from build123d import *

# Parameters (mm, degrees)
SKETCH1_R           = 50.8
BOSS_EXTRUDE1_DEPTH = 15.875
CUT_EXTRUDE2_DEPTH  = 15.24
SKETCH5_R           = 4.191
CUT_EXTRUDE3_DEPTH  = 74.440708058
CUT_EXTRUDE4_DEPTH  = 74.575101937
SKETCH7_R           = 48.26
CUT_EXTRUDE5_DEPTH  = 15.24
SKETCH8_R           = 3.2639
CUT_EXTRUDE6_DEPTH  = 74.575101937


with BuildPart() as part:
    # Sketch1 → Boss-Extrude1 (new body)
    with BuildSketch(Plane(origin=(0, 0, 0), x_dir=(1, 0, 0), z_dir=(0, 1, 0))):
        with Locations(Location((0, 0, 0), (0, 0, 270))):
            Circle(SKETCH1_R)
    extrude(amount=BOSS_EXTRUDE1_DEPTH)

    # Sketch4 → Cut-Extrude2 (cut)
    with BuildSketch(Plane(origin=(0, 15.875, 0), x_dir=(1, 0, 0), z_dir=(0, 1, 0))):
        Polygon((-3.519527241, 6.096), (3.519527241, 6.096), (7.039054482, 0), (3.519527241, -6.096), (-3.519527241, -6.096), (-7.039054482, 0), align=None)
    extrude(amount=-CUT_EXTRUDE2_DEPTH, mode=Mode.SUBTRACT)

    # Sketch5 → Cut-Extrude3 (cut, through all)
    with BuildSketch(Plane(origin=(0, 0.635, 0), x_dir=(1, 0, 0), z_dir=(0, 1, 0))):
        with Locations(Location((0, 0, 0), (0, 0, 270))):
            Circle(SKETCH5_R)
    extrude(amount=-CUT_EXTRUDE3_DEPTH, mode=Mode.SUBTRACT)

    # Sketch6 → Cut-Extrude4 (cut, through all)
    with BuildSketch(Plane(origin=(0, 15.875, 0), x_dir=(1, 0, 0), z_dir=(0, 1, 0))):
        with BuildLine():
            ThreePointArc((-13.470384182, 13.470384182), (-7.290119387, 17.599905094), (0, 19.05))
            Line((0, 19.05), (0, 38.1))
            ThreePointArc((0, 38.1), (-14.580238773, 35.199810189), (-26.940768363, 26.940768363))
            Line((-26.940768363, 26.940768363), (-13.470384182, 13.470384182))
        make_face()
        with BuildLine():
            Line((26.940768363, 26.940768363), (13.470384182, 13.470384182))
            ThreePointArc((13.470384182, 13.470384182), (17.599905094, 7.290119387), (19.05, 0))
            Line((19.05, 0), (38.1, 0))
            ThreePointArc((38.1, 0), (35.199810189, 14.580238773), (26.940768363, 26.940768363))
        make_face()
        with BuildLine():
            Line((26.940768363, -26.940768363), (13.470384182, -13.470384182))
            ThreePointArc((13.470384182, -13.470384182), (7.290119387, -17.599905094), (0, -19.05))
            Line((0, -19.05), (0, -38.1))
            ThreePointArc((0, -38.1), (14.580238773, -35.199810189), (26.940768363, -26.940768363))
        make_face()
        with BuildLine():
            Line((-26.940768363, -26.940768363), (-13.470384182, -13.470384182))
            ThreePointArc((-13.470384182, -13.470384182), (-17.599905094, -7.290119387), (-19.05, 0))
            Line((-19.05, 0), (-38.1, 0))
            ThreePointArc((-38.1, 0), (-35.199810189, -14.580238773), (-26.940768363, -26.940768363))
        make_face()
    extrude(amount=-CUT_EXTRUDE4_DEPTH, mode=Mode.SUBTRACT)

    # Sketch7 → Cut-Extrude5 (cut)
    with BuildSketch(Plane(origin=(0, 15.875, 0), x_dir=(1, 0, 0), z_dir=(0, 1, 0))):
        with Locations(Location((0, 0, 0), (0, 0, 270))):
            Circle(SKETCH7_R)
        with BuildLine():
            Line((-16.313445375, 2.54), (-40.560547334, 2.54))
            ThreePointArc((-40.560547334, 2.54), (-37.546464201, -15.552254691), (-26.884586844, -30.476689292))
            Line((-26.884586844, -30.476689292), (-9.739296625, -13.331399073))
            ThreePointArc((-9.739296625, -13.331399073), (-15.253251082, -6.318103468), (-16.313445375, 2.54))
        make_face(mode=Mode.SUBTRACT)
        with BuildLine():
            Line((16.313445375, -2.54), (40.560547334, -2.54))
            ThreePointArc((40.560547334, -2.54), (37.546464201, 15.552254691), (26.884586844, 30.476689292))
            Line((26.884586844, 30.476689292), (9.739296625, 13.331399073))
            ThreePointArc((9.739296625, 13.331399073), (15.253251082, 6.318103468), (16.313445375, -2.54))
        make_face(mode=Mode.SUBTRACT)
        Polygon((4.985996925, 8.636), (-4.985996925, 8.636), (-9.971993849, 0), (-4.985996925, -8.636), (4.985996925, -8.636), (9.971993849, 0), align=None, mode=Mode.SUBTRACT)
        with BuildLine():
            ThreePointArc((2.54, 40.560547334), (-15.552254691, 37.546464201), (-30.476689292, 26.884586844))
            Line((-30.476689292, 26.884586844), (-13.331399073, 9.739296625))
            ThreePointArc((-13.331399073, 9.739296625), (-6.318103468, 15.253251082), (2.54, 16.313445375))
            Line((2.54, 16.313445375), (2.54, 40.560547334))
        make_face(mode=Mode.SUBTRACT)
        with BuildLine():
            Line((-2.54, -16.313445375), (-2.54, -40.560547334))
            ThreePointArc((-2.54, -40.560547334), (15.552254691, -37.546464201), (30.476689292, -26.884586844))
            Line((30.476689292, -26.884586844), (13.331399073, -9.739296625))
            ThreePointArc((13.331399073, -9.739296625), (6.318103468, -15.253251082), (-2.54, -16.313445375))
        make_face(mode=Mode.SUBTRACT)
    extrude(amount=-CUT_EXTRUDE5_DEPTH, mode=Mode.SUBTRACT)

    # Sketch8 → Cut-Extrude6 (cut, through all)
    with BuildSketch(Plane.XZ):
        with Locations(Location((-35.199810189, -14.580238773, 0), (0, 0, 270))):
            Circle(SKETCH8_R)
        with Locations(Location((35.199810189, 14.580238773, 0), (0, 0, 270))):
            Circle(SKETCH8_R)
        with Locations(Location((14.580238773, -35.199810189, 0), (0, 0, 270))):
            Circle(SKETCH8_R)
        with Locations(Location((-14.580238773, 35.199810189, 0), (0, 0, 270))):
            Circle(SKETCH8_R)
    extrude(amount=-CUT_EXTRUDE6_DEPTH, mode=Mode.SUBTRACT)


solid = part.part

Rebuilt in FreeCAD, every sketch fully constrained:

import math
import FreeCAD as App
import Part
import Sketcher
Q = App.Units.Quantity

doc = App.newDocument("Part")
body = doc.addObject("PartDesign::Body", "Body")

# Sketch on XZ plane
sketch1 = body.newObject("Sketcher::SketchObject", "Sketch")
sketch1.AttachmentSupport = (doc.getObject("XZ_Plane"), [""])
sketch1.MapMode = "FlatFace"
sketch1.addGeometry(Part.Circle(App.Vector(0, 0, 0), App.Vector(0, 0, 1), 51), False)
sketch1.addConstraint([
    Sketcher.Constraint("Coincident", 0, 3, -1, 1),
    Sketcher.Constraint("Diameter", 0, Q("4 in")),
])
pad1 = body.newObject("PartDesign::Pad", "Pad")
pad1.Profile = sketch1
pad1.Length = Q("0.625 in")
pad1.Reversed = True

# Sketch on XZ plane
sketch2 = body.newObject("Sketcher::SketchObject", "Sketch001")
sketch2.AttachmentSupport = (doc.getObject("XZ_Plane"), [""])
sketch2.MapMode = "FlatFace"
sketch2.AttachmentOffset = App.Placement(App.Vector(0, 0, -0.625 * 25.4), App.Rotation())
sketch2.addGeometry([
    Part.LineSegment(App.Vector(4, -6, 0), App.Vector(-4, -6, 0)),  # 0
    Part.LineSegment(App.Vector(-4, -6, 0), App.Vector(-7, 0, 0)),  # 1
    Part.LineSegment(App.Vector(-7, 0, 0), App.Vector(-4, 6, 0)),  # 2
    Part.LineSegment(App.Vector(-4, 6, 0), App.Vector(4, 6, 0)),  # 3
    Part.LineSegment(App.Vector(4, 6, 0), App.Vector(7, 0, 0)),  # 4
    Part.LineSegment(App.Vector(7, 0, 0), App.Vector(4, -6, 0)),  # 5
], False)
sketch2.addConstraint([
    Sketcher.Constraint("Coincident", 0, 2, 1, 1),
    Sketcher.Constraint("Coincident", 1, 2, 2, 1),
    Sketcher.Constraint("Coincident", 2, 2, 3, 1),
    Sketcher.Constraint("Coincident", 3, 2, 4, 1),
    Sketcher.Constraint("Coincident", 4, 2, 5, 1),
    Sketcher.Constraint("Coincident", 5, 2, 0, 1),
    Sketcher.Constraint("Horizontal", 0),
    Sketcher.Constraint("Horizontal", 3),
    Sketcher.Constraint("Symmetric", 0, 2, 3, 2, -1, 1),
    Sketcher.Constraint("Symmetric", 1, 2, 4, 2, -1, 1),
    Sketcher.Constraint("PointOnObject", 1, 2, -1),
    Sketcher.Constraint("Parallel", 2, 5),
    Sketcher.Constraint("Vertical", 0, 2, 2, 2),
    Sketcher.Constraint("Angle", 1, Q("120 deg")),
    Sketcher.Constraint("DistanceY", 0, 2, -1, 1, Q("0.24 in")),
    Sketcher.Constraint("DistanceX", 0, 2, 0, 1, Q("7.039054 mm")),
])
pocket1 = body.newObject("PartDesign::Pocket", "Pocket")
pocket1.Profile = sketch2
pocket1.Length = Q("0.6 in")
pocket1.Reversed = True

# Sketch on XZ plane
sketch3 = body.newObject("Sketcher::SketchObject", "Sketch002")
sketch3.AttachmentSupport = (doc.getObject("XZ_Plane"), [""])
sketch3.MapMode = "FlatFace"
sketch3.AttachmentOffset = App.Placement(App.Vector(0, 0, -0.025 * 25.4), App.Rotation())
sketch3.addGeometry(Part.Circle(App.Vector(0, 0, 0), App.Vector(0, 0, 1), 4.2), False)
sketch3.addConstraint([
    Sketcher.Constraint("Coincident", 0, 3, -1, 1),
    Sketcher.Constraint("Diameter", 0, Q("0.33 in")),
])
pocket2 = body.newObject("PartDesign::Pocket", "Pocket001")
pocket2.Profile = sketch3
pocket2.Type = "ThroughAll"
pocket2.Reversed = True

# Sketch on XZ plane
sketch4 = body.newObject("Sketcher::SketchObject", "Sketch003")
sketch4.AttachmentSupport = (doc.getObject("XZ_Plane"), [""])
sketch4.MapMode = "FlatFace"
sketch4.AttachmentOffset = App.Placement(App.Vector(0, 0, -0.625 * 25.4), App.Rotation())
sketch4.addGeometry([
    Part.ArcOfCircle(Part.Circle(App.Vector(0, 0, 0), App.Vector(0, 0, 1), 19), math.radians(-135), math.radians(-90)),  # 0
    Part.LineSegment(App.Vector(0, -19, 0), App.Vector(0, -38, 0)),  # 1
    Part.ArcOfCircle(Part.Circle(App.Vector(0, 0, 0), App.Vector(0, 0, 1), 38), math.radians(-135), math.radians(-90)),  # 2
    Part.LineSegment(App.Vector(-27, -27, 0), App.Vector(-13, -13, 0)),  # 3
    Part.LineSegment(App.Vector(27, -27, 0), App.Vector(13, -13, 0)),  # 4
    Part.ArcOfCircle(Part.Circle(App.Vector(0, 0, 0), App.Vector(0, 0, 1), 19), math.radians(-45), math.radians(0)),  # 5
    Part.LineSegment(App.Vector(19, 0, 0), App.Vector(38, 0, 0)),  # 6
    Part.ArcOfCircle(Part.Circle(App.Vector(0, 0, 0), App.Vector(0, 0, 1), 38), math.radians(-45), math.radians(0)),  # 7
    Part.LineSegment(App.Vector(27, 27, 0), App.Vector(13, 13, 0)),  # 8
    Part.ArcOfCircle(Part.Circle(App.Vector(0, 0, 0), App.Vector(0, 0, 1), 19), math.radians(45), math.radians(90)),  # 9
    Part.LineSegment(App.Vector(0, 19, 0), App.Vector(0, 38, 0)),  # 10
    Part.ArcOfCircle(Part.Circle(App.Vector(0, 0, 0), App.Vector(0, 0, 1), 38), math.radians(45), math.radians(90)),  # 11
    Part.LineSegment(App.Vector(-27, 27, 0), App.Vector(-13, 13, 0)),  # 12
    Part.ArcOfCircle(Part.Circle(App.Vector(0, 0, 0), App.Vector(0, 0, 1), 19), math.radians(135), math.radians(180)),  # 13
    Part.LineSegment(App.Vector(-19, 0, 0), App.Vector(-38, 0, 0)),  # 14
    Part.ArcOfCircle(Part.Circle(App.Vector(0, 0, 0), App.Vector(0, 0, 1), 38), math.radians(135), math.radians(180)),  # 15
], False)
sketch4.addConstraint([
    Sketcher.Constraint("Coincident", 0, 2, 1, 1),
    Sketcher.Constraint("Coincident", 1, 2, 2, 2),
    Sketcher.Constraint("Coincident", 2, 1, 3, 1),
    Sketcher.Constraint("Coincident", 3, 2, 0, 1),
    Sketcher.Constraint("Coincident", 4, 2, 5, 1),
    Sketcher.Constraint("Coincident", 5, 2, 6, 1),
    Sketcher.Constraint("Coincident", 6, 2, 7, 2),
    Sketcher.Constraint("Coincident", 7, 1, 4, 1),
    Sketcher.Constraint("Coincident", 8, 2, 9, 1),
    Sketcher.Constraint("Coincident", 9, 2, 10, 1),
    Sketcher.Constraint("Coincident", 10, 2, 11, 2),
    Sketcher.Constraint("Coincident", 11, 1, 8, 1),
    Sketcher.Constraint("Coincident", 12, 2, 13, 1),
    Sketcher.Constraint("Coincident", 13, 2, 14, 1),
    Sketcher.Constraint("Coincident", 14, 2, 15, 2),
    Sketcher.Constraint("Coincident", 15, 1, 12, 1),
    Sketcher.Constraint("Vertical", 1),
    Sketcher.Constraint("Horizontal", 6),
    Sketcher.Constraint("Vertical", 10),
    Sketcher.Constraint("Horizontal", 14),
    Sketcher.Constraint("Coincident", 0, 3, -1, 1),
    Sketcher.Constraint("Coincident", 2, 3, -1, 1),
    Sketcher.Constraint("Coincident", 5, 3, -1, 1),
    Sketcher.Constraint("Coincident", 7, 3, -1, 1),
    Sketcher.Constraint("Coincident", 9, 3, -1, 1),
    Sketcher.Constraint("Coincident", 11, 3, -1, 1),
    Sketcher.Constraint("Coincident", 13, 3, -1, 1),
    Sketcher.Constraint("Coincident", 15, 3, -1, 1),
    Sketcher.Constraint("Equal", 0, 5),
    Sketcher.Constraint("Equal", 2, 7),
    Sketcher.Constraint("Equal", 5, 9),
    Sketcher.Constraint("Equal", 7, 11),
    Sketcher.Constraint("Equal", 9, 13),
    Sketcher.Constraint("Equal", 11, 15),
    Sketcher.Constraint("PointOnObject", 0, 2, -2),
    Sketcher.Constraint("PointOnObject", 5, 2, -1),
    Sketcher.Constraint("PointOnObject", 9, 2, -2),
    Sketcher.Constraint("PointOnObject", 13, 2, -1),
    Sketcher.Constraint("Perpendicular", 3, 4),
    Sketcher.Constraint("Perpendicular", 4, 8),
    Sketcher.Constraint("Perpendicular", 8, 12),
    Sketcher.Constraint("Horizontal", 3, 2, 4, 2),
    Sketcher.Constraint("Horizontal", 2, 1, 7, 1),
    Sketcher.Constraint("Horizontal", 8, 2, 12, 2),
    Sketcher.Constraint("Vertical", 4, 2, 8, 2),
    Sketcher.Constraint("Radius", 2, Q("1.5 in")),
    Sketcher.Constraint("Radius", 0, Q("0.75 in")),
    Sketcher.Constraint("DistanceX", 2, 1, -1, 1, Q("26.940768 mm")),
])
pocket3 = body.newObject("PartDesign::Pocket", "Pocket002")
pocket3.Profile = sketch4
pocket3.Type = "ThroughAll"
pocket3.Reversed = True

# Sketch on XZ plane
sketch5 = body.newObject("Sketcher::SketchObject", "Sketch004")
sketch5.AttachmentSupport = (doc.getObject("XZ_Plane"), [""])
sketch5.MapMode = "FlatFace"
sketch5.AttachmentOffset = App.Placement(App.Vector(0, 0, -0.625 * 25.4), App.Rotation())
sketch5.addGeometry([
    Part.Circle(App.Vector(0, 0, 0), App.Vector(0, 0, 1), 48),  # 0
    Part.ArcOfCircle(Part.Circle(App.Vector(0, 0, 0), App.Vector(0, 0, 1), 41), math.radians(-139), math.radians(-86)),  # 1
    Part.LineSegment(App.Vector(3, -41, 0), App.Vector(3, -16, 0)),  # 2
    Part.ArcOfCircle(Part.Circle(App.Vector(0, 0, 0), App.Vector(0, 0, 1), 17), math.radians(-144), math.radians(-81)),  # 3
    Part.LineSegment(App.Vector(-13, -10, 0), App.Vector(-30, -27, 0)),  # 4
    Part.LineSegment(App.Vector(-41, -3, 0), App.Vector(-16, -3, 0)),  # 5
    Part.ArcOfCircle(Part.Circle(App.Vector(0, 0, 0), App.Vector(0, 0, 1), 17), math.radians(126), math.radians(189)),  # 6
    Part.LineSegment(App.Vector(-10, 13, 0), App.Vector(-27, 30, 0)),  # 7
    Part.ArcOfCircle(Part.Circle(App.Vector(0, 0, 0), App.Vector(0, 0, 1), 41), math.radians(131), math.radians(184)),  # 8
    Part.LineSegment(App.Vector(41, 3, 0), App.Vector(16, 3, 0)),  # 9
    Part.ArcOfCircle(Part.Circle(App.Vector(0, 0, 0), App.Vector(0, 0, 1), 17), math.radians(-54), math.radians(9)),  # 10
    Part.LineSegment(App.Vector(10, -13, 0), App.Vector(27, -30, 0)),  # 11
    Part.ArcOfCircle(Part.Circle(App.Vector(0, 0, 0), App.Vector(0, 0, 1), 41), math.radians(-49), math.radians(4)),  # 12
    Part.LineSegment(App.Vector(-5, -9, 0), App.Vector(5, -9, 0)),  # 13
    Part.LineSegment(App.Vector(5, -9, 0), App.Vector(10, 0, 0)),  # 14
    Part.LineSegment(App.Vector(10, 0, 0), App.Vector(5, 9, 0)),  # 15
    Part.LineSegment(App.Vector(5, 9, 0), App.Vector(-5, 9, 0)),  # 16
    Part.LineSegment(App.Vector(-5, 9, 0), App.Vector(-10, 0, 0)),  # 17
    Part.LineSegment(App.Vector(-10, 0, 0), App.Vector(-5, -9, 0)),  # 18
    Part.LineSegment(App.Vector(-3, 41, 0), App.Vector(-3, 16, 0)),  # 19
    Part.ArcOfCircle(Part.Circle(App.Vector(0, 0, 0), App.Vector(0, 0, 1), 17), math.radians(36), math.radians(99)),  # 20
    Part.LineSegment(App.Vector(13, 10, 0), App.Vector(30, 27, 0)),  # 21
    Part.ArcOfCircle(Part.Circle(App.Vector(0, 0, 0), App.Vector(0, 0, 1), 41), math.radians(41), math.radians(94)),  # 22
], False)
sketch5.addConstraint([
    Sketcher.Constraint("Coincident", 1, 2, 2, 1),
    Sketcher.Constraint("Coincident", 2, 2, 3, 2),
    Sketcher.Constraint("Coincident", 3, 1, 4, 1),
    Sketcher.Constraint("Coincident", 4, 2, 1, 1),
    Sketcher.Constraint("Coincident", 5, 2, 6, 2),
    Sketcher.Constraint("Coincident", 6, 1, 7, 1),
    Sketcher.Constraint("Coincident", 7, 2, 8, 1),
    Sketcher.Constraint("Coincident", 8, 2, 5, 1),
    Sketcher.Constraint("Coincident", 9, 2, 10, 2),
    Sketcher.Constraint("Coincident", 10, 1, 11, 1),
    Sketcher.Constraint("Coincident", 11, 2, 12, 1),
    Sketcher.Constraint("Coincident", 12, 2, 9, 1),
    Sketcher.Constraint("Coincident", 13, 2, 14, 1),
    Sketcher.Constraint("Coincident", 14, 2, 15, 1),
    Sketcher.Constraint("Coincident", 15, 2, 16, 1),
    Sketcher.Constraint("Coincident", 16, 2, 17, 1),
    Sketcher.Constraint("Coincident", 17, 2, 18, 1),
    Sketcher.Constraint("Coincident", 18, 2, 13, 1),
    Sketcher.Constraint("Coincident", 19, 2, 20, 2),
    Sketcher.Constraint("Coincident", 20, 1, 21, 1),
    Sketcher.Constraint("Coincident", 21, 2, 22, 1),
    Sketcher.Constraint("Coincident", 22, 2, 19, 1),
    Sketcher.Constraint("Vertical", 2),
    Sketcher.Constraint("Horizontal", 5),
    Sketcher.Constraint("Horizontal", 9),
    Sketcher.Constraint("Horizontal", 13),
    Sketcher.Constraint("Horizontal", 16),
    Sketcher.Constraint("Vertical", 19),
    Sketcher.Constraint("Coincident", 0, 3, -1, 1),
    Sketcher.Constraint("Coincident", 1, 3, -1, 1),
    Sketcher.Constraint("Coincident", 3, 3, -1, 1),
    Sketcher.Constraint("Coincident", 6, 3, -1, 1),
    Sketcher.Constraint("Coincident", 8, 3, -1, 1),
    Sketcher.Constraint("Coincident", 10, 3, -1, 1),
    Sketcher.Constraint("Coincident", 12, 3, -1, 1),
    Sketcher.Constraint("Coincident", 20, 3, -1, 1),
    Sketcher.Constraint("Coincident", 22, 3, -1, 1),
    Sketcher.Constraint("Equal", 3, 6),
    Sketcher.Constraint("Equal", 1, 8),
    Sketcher.Constraint("Equal", 6, 10),
    Sketcher.Constraint("Equal", 8, 12),
    Sketcher.Constraint("Equal", 10, 20),
    Sketcher.Constraint("Equal", 12, 22),
    Sketcher.Constraint("Symmetric", 13, 2, 16, 2, -1, 1),
    Sketcher.Constraint("Symmetric", 14, 2, 17, 2, -1, 1),
    Sketcher.Constraint("PointOnObject", 14, 2, -1),
    Sketcher.Constraint("Perpendicular", 4, 7),
    Sketcher.Constraint("Parallel", 7, 11),
    Sketcher.Constraint("Parallel", 15, 18),
    Sketcher.Constraint("Perpendicular", 11, 21),
    Sketcher.Constraint("Vertical", 13, 2, 15, 2),
    Sketcher.Constraint("Equal", 5, 9),
    Sketcher.Constraint("Equal", 9, 2),
    Sketcher.Constraint("Equal", 2, 19),
    Sketcher.Constraint("Equal", 4, 7),
    Sketcher.Constraint("Equal", 7, 11),
    Sketcher.Constraint("Equal", 11, 21),
    Sketcher.Constraint("Diameter", 0, Q("3.8 in")),
    Sketcher.Constraint("Radius", 1, Q("1.6 in")),
    Sketcher.Constraint("Radius", 3, Q("0.65 in")),
    Sketcher.Constraint("Angle", 4, Q("-135 deg")),
    Sketcher.Constraint("Angle", 14, Q("60 deg")),
    Sketcher.Constraint("DistanceX", -1, 1, 1, 2, Q("0.1 in")),
    Sketcher.Constraint("DistanceY", 13, 2, -1, 1, Q("0.34 in")),
    Sketcher.Constraint("Distance", 4, Q("24.247102 mm")),
    Sketcher.Constraint("DistanceX", 13, 2, 10, 1, Q("4.7533 mm")),
])
pocket4 = body.newObject("PartDesign::Pocket", "Pocket003")
pocket4.Profile = sketch5
pocket4.Length = Q("0.6 in")
pocket4.Reversed = True

# Sketch on XZ plane
sketch6 = body.newObject("Sketcher::SketchObject", "Sketch005")
sketch6.AttachmentSupport = (doc.getObject("XZ_Plane"), [""])
sketch6.MapMode = "FlatFace"
sketch6.addGeometry([
    Part.Circle(App.Vector(-35.2, -14.6, 0), App.Vector(0, 0, 1), 3.3),
    Part.Circle(App.Vector(35.2, 14.6, 0), App.Vector(0, 0, 1), 3.3),
    Part.Circle(App.Vector(14.6, -35.2, 0), App.Vector(0, 0, 1), 3.3),
    Part.Circle(App.Vector(-14.6, 35.2, 0), App.Vector(0, 0, 1), 3.3),
], False)
sketch6.addConstraint([
    Sketcher.Constraint("Equal", 0, 1),
    Sketcher.Constraint("Equal", 1, 2),
    Sketcher.Constraint("Equal", 2, 3),
    Sketcher.Constraint("Symmetric", 0, 3, 1, 3, -1, 1),
    Sketcher.Constraint("Symmetric", 2, 3, 3, 3, -1, 1),
    Sketcher.Constraint("Diameter", 0, Q("0.257 in")),
    Sketcher.Constraint("DistanceX", 0, 3, -1, 1, Q("35.19981 mm")),
    Sketcher.Constraint("DistanceY", 0, 3, -1, 1, Q("14.580239 mm")),
    Sketcher.Constraint("DistanceX", -1, 1, 2, 3, Q("14.580239 mm")),
    Sketcher.Constraint("DistanceY", 2, 3, -1, 1, Q("35.19981 mm")),
])
pocket5 = body.newObject("PartDesign::Pocket", "Pocket004")
pocket5.Profile = sketch6
pocket5.Type = "ThroughAll"

doc.recompute()
